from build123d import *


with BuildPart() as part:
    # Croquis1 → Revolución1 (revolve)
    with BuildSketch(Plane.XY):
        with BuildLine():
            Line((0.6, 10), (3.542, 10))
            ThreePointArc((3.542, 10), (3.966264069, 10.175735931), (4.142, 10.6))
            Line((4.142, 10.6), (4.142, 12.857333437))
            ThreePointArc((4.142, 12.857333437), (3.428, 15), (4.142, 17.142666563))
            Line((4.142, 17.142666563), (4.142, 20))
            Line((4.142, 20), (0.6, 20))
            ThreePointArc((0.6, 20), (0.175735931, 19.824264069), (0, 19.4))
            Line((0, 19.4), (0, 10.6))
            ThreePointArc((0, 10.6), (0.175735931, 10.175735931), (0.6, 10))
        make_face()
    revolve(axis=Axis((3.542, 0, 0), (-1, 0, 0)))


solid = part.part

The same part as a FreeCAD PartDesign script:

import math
import FreeCAD as App
import Part
import Sketcher

V = App.Vector

doc = App.newDocument("Part")
params = doc.addObject("Spreadsheet::Sheet", "Params")
for row, (alias, value) in enumerate([
    ("sketch1_radius", "0.6 mm"),
    ("sketch1_height", "8.8 mm"),
    ("revolution_angle", "360 deg"),
], start=1):
    params.set(f"A{row}", alias)
    params.set(f"B{row}", "=" + value)
    params.setAlias(f"B{row}", alias)

body = doc.addObject("PartDesign::Body", "Body")

sketch1 = body.newObject("Sketcher::SketchObject", "Sketch")
sketch1.AttachmentSupport = (doc.getObject("XY_Plane"), [""])
sketch1.MapMode = "FlatFace"
sketch1.addGeometry([
    Part.LineSegment(V(0.6, 10, 0), V(3.5, 10, 0)),
    Part.ArcOfCircle(Part.Circle(V(3.5, 10.6, 0), V(0, 0, 1), 0.6), math.radians(-90), math.radians(0)),
    Part.LineSegment(V(4.1, 10.6, 0), V(4.1, 12.9, 0)),
    Part.ArcOfCircle(Part.Circle(V(7, 15, 0), V(0, 0, 1), 3.6), math.radians(143), math.radians(217)),
    Part.LineSegment(V(4.1, 17.1, 0), V(4.1, 20, 0)),
    Part.LineSegment(V(4.1, 20, 0), V(0.6, 20, 0)),
    Part.ArcOfCircle(Part.Circle(V(0.6, 19.4, 0), V(0, 0, 1), 0.6), math.radians(90), math.radians(180)),
    Part.LineSegment(V(0, 19.4, 0), V(0, 10.6, 0)),
    Part.ArcOfCircle(Part.Circle(V(0.6, 10.6, 0), V(0, 0, 1), 0.6), math.radians(180), math.radians(270)),
], False)
sketch1.addConstraint([
    Sketcher.Constraint("Tangent", 0, 2, 1, 1),
    Sketcher.Constraint("Tangent", 1, 2, 2, 1),
    Sketcher.Constraint("Coincident", 2, 2, 3, 2),
    Sketcher.Constraint("Coincident", 3, 1, 4, 1),
    Sketcher.Constraint("Coincident", 4, 2, 5, 1),
    Sketcher.Constraint("Tangent", 5, 2, 6, 1),
    Sketcher.Constraint("Tangent", 6, 2, 7, 1),
    Sketcher.Constraint("Tangent", 7, 2, 8, 1),
    Sketcher.Constraint("Tangent", 8, 2, 0, 1),
    Sketcher.Constraint("Horizontal", 0),
    Sketcher.Constraint("Vertical", 2),
    Sketcher.Constraint("Vertical", 4),
    Sketcher.Constraint("Horizontal", 5),
    Sketcher.Constraint("Vertical", 7),
    Sketcher.Constraint("Equal", 1, 6),
    Sketcher.Constraint("Equal", 6, 8),
    Sketcher.Constraint("PointOnObject", 6, 2, -2),
    Sketcher.Constraint("Vertical", 2, 2, 3, 1),
    Sketcher.Constraint("Radius", 1, 0.6),
    Sketcher.Constraint("DistanceY", 7, 2, 7, 1, 8.8),
    Sketcher.Constraint("DistanceX", -1, 1, 3, 3, 7.0),
    Sketcher.Constraint("DistanceY", -1, 1, 3, 3, 15.0),
    Sketcher.Constraint("DistanceY", -1, 1, 0, 2, 10.0),
    Sketcher.Constraint("Radius", 3, 3.572),
    Sketcher.Constraint("DistanceX", 0, 1, 0, 2, 2.942),
])
sketch1.setExpression("Constraints[18]", "Params.sketch1_radius")
sketch1.setExpression("Constraints[19]", "Params.sketch1_height")
revolution = body.newObject("PartDesign::Revolution", "Revolution")
revolution.Profile = sketch1
revolution.ReferenceAxis = (sketch1, ["H_Axis"])
revolution.setExpression("Angle", "Params.revolution_angle")

doc.recompute()
